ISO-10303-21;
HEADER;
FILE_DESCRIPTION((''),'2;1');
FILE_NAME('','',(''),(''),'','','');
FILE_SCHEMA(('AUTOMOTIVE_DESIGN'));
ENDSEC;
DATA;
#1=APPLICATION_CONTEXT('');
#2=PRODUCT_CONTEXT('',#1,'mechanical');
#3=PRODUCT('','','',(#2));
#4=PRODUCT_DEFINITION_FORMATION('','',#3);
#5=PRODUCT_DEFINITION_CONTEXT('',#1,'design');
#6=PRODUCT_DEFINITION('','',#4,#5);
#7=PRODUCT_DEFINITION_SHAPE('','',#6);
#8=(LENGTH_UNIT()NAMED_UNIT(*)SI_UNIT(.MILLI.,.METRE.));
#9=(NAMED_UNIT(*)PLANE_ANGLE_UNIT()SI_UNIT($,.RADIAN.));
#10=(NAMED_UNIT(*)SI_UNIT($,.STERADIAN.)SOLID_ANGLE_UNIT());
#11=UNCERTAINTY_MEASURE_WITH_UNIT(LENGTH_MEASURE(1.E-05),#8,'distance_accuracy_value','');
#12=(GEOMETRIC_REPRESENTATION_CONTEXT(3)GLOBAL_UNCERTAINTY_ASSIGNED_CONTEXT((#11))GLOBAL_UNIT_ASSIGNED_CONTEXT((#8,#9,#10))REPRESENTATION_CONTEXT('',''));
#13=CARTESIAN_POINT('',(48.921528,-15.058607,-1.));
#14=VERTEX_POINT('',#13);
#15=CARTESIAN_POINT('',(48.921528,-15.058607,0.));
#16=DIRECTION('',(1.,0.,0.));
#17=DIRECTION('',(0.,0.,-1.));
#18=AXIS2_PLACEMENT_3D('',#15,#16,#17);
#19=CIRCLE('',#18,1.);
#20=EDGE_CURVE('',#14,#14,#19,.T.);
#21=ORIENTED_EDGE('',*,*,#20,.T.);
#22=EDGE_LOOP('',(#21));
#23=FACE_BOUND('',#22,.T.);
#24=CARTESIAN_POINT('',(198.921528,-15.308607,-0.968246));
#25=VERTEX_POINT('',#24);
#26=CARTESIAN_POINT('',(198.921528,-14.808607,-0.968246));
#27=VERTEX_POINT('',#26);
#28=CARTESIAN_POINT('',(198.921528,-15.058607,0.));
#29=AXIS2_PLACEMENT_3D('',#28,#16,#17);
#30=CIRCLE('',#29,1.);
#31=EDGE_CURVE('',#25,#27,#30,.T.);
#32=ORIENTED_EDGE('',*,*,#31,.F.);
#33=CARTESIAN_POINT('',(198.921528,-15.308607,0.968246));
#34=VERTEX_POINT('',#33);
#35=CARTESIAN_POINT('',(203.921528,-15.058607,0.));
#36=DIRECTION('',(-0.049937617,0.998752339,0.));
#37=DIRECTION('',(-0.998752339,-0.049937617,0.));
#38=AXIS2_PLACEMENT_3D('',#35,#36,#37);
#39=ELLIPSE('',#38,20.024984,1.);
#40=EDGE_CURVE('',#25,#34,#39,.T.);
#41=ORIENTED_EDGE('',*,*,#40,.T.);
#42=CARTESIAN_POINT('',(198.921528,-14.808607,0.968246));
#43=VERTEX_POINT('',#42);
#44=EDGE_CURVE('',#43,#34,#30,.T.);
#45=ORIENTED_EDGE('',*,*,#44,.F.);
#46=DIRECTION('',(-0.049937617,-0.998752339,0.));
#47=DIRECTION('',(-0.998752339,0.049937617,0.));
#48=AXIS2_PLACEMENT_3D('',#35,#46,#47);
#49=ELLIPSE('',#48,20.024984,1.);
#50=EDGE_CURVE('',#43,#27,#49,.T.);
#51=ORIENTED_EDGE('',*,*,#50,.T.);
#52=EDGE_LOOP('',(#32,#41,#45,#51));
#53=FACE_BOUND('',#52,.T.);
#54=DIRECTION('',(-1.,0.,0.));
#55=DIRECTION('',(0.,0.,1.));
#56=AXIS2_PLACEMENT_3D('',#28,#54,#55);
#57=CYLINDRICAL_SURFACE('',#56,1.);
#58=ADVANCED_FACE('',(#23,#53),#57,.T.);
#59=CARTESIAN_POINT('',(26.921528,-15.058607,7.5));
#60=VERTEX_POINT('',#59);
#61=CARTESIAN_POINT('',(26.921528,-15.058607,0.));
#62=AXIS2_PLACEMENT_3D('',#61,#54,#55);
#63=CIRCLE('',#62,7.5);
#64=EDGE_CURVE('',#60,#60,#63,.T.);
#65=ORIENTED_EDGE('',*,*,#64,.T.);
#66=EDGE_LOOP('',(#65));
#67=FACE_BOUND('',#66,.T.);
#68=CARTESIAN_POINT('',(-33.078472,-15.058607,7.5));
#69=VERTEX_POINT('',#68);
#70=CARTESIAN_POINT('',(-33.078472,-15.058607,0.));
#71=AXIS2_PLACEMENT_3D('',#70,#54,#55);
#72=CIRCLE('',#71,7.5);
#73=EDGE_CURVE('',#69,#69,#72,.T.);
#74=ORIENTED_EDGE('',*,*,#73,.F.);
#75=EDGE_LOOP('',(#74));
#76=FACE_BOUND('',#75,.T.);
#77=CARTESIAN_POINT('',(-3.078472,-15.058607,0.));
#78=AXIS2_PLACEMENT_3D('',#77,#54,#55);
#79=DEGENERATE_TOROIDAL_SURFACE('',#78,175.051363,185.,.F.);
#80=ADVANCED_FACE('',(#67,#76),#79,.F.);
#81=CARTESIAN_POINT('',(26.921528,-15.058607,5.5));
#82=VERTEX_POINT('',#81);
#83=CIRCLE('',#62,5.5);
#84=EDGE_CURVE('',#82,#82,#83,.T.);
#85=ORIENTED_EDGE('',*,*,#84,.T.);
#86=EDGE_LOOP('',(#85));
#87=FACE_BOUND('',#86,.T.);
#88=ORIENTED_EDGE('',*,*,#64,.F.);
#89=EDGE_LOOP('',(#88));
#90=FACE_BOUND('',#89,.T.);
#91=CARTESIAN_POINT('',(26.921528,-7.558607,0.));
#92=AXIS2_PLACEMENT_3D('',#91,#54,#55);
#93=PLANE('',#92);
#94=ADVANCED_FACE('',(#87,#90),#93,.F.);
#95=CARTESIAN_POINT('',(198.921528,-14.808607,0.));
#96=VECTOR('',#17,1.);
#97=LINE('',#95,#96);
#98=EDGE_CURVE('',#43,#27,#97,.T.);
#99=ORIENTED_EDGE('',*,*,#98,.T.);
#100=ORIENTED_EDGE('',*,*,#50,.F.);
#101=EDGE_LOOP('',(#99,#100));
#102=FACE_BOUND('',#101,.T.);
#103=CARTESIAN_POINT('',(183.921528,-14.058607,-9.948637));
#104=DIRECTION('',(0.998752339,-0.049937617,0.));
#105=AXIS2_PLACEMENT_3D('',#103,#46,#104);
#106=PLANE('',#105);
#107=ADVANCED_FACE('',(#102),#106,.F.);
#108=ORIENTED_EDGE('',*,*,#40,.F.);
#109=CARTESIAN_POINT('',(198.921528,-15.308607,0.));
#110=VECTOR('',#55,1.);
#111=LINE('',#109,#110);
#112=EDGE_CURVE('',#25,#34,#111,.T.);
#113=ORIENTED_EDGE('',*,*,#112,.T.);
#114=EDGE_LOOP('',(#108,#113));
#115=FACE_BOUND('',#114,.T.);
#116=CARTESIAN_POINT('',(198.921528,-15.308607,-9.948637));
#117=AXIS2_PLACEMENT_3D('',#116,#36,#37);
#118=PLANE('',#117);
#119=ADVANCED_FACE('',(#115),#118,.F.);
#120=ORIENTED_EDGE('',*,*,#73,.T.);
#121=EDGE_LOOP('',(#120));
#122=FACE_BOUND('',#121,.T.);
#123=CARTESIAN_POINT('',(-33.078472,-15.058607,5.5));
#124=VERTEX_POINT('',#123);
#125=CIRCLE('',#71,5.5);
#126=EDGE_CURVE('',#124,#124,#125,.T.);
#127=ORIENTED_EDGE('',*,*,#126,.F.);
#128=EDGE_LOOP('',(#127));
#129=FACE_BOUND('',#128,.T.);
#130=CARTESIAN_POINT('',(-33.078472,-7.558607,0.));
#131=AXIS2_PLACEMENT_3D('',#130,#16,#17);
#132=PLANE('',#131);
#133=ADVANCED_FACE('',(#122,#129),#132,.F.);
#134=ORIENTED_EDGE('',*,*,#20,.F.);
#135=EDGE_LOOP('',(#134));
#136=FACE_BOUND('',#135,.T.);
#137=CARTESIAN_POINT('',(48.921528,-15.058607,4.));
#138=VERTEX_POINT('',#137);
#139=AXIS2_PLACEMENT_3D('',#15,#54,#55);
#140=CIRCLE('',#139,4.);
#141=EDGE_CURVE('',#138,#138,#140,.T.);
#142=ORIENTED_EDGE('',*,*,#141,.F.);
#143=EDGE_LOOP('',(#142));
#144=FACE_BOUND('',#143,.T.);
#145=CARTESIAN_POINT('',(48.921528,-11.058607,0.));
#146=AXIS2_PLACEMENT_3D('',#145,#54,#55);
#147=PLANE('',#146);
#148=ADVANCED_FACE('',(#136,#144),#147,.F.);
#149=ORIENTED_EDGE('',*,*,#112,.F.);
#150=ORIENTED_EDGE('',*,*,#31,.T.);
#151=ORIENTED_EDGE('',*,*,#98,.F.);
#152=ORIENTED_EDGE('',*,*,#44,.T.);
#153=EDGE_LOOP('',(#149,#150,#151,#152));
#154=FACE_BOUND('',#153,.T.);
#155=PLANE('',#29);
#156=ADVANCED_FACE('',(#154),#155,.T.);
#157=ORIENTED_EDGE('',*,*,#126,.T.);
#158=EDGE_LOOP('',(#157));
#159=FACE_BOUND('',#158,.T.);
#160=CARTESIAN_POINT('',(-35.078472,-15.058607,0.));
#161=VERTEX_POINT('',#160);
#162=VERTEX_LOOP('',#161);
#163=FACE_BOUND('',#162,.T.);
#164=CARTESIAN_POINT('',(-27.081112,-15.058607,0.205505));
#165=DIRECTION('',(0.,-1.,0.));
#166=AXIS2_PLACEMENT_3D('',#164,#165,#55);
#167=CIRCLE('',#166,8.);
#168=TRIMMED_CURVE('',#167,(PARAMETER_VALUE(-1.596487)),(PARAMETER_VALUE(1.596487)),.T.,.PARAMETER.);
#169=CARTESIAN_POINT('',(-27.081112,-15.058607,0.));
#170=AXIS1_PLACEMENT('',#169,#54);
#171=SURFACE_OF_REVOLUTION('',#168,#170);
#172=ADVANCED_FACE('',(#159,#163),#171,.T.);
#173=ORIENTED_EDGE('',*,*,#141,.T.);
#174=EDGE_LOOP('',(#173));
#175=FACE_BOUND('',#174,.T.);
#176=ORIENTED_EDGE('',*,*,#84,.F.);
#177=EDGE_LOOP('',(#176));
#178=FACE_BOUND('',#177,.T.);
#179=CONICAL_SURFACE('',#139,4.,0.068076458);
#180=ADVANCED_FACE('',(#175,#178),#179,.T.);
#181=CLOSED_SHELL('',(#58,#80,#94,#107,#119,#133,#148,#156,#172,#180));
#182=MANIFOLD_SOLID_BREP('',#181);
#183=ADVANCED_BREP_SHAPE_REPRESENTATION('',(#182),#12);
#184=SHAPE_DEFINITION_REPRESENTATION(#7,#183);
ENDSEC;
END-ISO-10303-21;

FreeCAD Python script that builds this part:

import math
import FreeCAD as App
import Part
import Sketcher
from FreeCAD import Vector
Q = App.Units.Quantity

doc = App.newDocument("Part")
body = doc.addObject("PartDesign::Body", "Body")

# Sketch on XY plane
sketch1 = doc.addObject("Sketcher::SketchObject", "Sketch")
body.addObject(sketch1)
sketch1.AttachmentSupport = (doc.XY_Plane, [""])
sketch1.MapMode = "FlatFace"
sketch1.addGeometry(Part.LineSegment(Vector(26.9, -9.6, 0), Vector(26.9, -7.6, 0)), False)
sketch1.addGeometry(Part.ArcOfCircle(Part.Circle(Vector(-3.1, -190.1, 0), Vector(0, 0, 1), 185), math.radians(80.67), math.radians(99.33)), False)
sketch1.addGeometry(Part.LineSegment(Vector(-33.1, -7.6, 0), Vector(-33.1, -9.6, 0)), False)
sketch1.addGeometry(Part.ArcOfCircle(Part.Circle(Vector(-27.1, -14.9, 0), Vector(0, 0, 1), 8), math.radians(139), math.radians(181)), False)
sketch1.addGeometry(Part.LineSegment(Vector(-35.1, -15.1, 0), Vector(48.9, -15.1, 0)), False)
sketch1.addGeometry(Part.LineSegment(Vector(48.9, -15.1, 0), Vector(48.9, -11.1, 0)), False)
sketch1.addGeometry(Part.LineSegment(Vector(48.9, -11.1, 0), Vector(26.9, -9.6, 0)), False)
sketch1.addGeometry(Part.LineSegment(Vector(-35.1, -15.1, 0), Vector(48.9, -15.1, 0)), True)  # axis
sketch1.addConstraint(Sketcher.Constraint("Coincident", 0, 2, 1, 1))
sketch1.addConstraint(Sketcher.Constraint("Coincident", 1, 2, 2, 1))
sketch1.addConstraint(Sketcher.Constraint("Coincident", 2, 2, 3, 1))
sketch1.addConstraint(Sketcher.Constraint("Coincident", 3, 2, 4, 1))
sketch1.addConstraint(Sketcher.Constraint("Coincident", 4, 2, 5, 1))
sketch1.addConstraint(Sketcher.Constraint("Coincident", 5, 2, 6, 1))
sketch1.addConstraint(Sketcher.Constraint("Coincident", 6, 2, 0, 1))
sketch1.addConstraint(Sketcher.Constraint("Vertical", 0))
sketch1.addConstraint(Sketcher.Constraint("Vertical", 2))
sketch1.addConstraint(Sketcher.Constraint("Horizontal", 4))
sketch1.addConstraint(Sketcher.Constraint("Vertical", 5))
sketch1.addConstraint(Sketcher.Constraint("Horizontal", 7))
sketch1.addConstraint(Sketcher.Constraint("Coincident", 7, 1, 3, 2))
sketch1.addConstraint(Sketcher.Constraint("Horizontal", 0, 2, 1, 2))
sketch1.addConstraint(Sketcher.Constraint("Horizontal", 2, 2, 6, 2))
sketch1.addConstraint(Sketcher.Constraint("Vertical", 5, 2, 7, 2))
sketch1.addConstraint(Sketcher.Constraint("Radius", 1, Q("185 mm")))
sketch1.addConstraint(Sketcher.Constraint("Radius", 3, Q("8 mm")))
sketch1.addConstraint(Sketcher.Constraint("DistanceX", 4, 1, 4, 2, Q("84 mm")))
sketch1.addConstraint(Sketcher.Constraint("DistanceY", 0, 1, 0, 2, Q("2 mm")))
sketch1.addConstraint(Sketcher.Constraint("DistanceY", 5, 1, 5, 2, Q("4 mm")))
sketch1.addConstraint(Sketcher.Constraint("DistanceX", 1, 3, 0, 2, Q("30 mm")))
sketch1.addConstraint(Sketcher.Constraint("DistanceX", 3, 2, 2, 2, Q("2 mm")))
sketch1.addConstraint(Sketcher.Constraint("DistanceY", 3, 2, 2, 2, Q("5.5 mm")))
sketch1.addConstraint(Sketcher.Constraint("DistanceY", 3, 3, -1, 1, Q("14.853101 mm")))
sketch1.addConstraint(Sketcher.Constraint("DistanceX", 1, 3, -1, 1, Q("3.078472 mm")))
revolution = doc.addObject("PartDesign::Revolution", "Revolution")
body.addObject(revolution)
revolution.Profile = sketch1
revolution.ReferenceAxis = (sketch1, ["Axis0"])
revolution.Angle = 360

# Sketch on YZ plane
sketch2 = doc.addObject("Sketcher::SketchObject", "Sketch001")
body.addObject(sketch2)
sketch2.AttachmentSupport = (doc.YZ_Plane, [""])
sketch2.MapMode = "FlatFace"
sketch2.AttachmentOffset = App.Placement(Vector(0, 0, 48.921528), App.Rotation())
sketch2.addGeometry(Part.Circle(Vector(-15.1, 0, 0), Vector(0, 0, 1), 1), False)
sketch2.addConstraint(Sketcher.Constraint("PointOnObject", 0, 3, -1))
sketch2.addConstraint(Sketcher.Constraint("Diameter", 0, Q("2 mm")))
sketch2.addConstraint(Sketcher.Constraint("DistanceX", 0, 3, -1, 1, Q("15.058607 mm")))
pad1 = doc.addObject("PartDesign::Pad", "Pad")
body.addObject(pad1)
pad1.Profile = sketch2
pad1.Length = 150

# Sketch on XY plane
sketch3 = doc.addObject("Sketcher::SketchObject", "Sketch002")
body.addObject(sketch3)
sketch3.AttachmentSupport = (doc.XY_Plane, [""])
sketch3.MapMode = "FlatFace"
sketch3.addGeometry(Part.LineSegment(Vector(198.9, -14.1, 0), Vector(183.9, -14.1, 0)), False)
sketch3.addGeometry(Part.LineSegment(Vector(183.9, -14.1, 0), Vector(198.9, -14.8, 0)), False)
sketch3.addGeometry(Part.LineSegment(Vector(198.9, -14.8, 0), Vector(198.9, -14.1, 0)), False)
sketch3.addGeometry(Part.LineSegment(Vector(198.9, -16.1, 0), Vector(198.9, -15.3, 0)), False)
sketch3.addGeometry(Part.LineSegment(Vector(198.9, -15.3, 0), Vector(183.9, -16.1, 0)), False)
sketch3.addGeometry(Part.LineSegment(Vector(183.9, -16.1, 0), Vector(198.9, -16.1, 0)), False)
sketch3.addConstraint(Sketcher.Constraint("Coincident", 0, 2, 1, 1))
sketch3.addConstraint(Sketcher.Constraint("Coincident", 1, 2, 2, 1))
sketch3.addConstraint(Sketcher.Constraint("Coincident", 2, 2, 0, 1))
sketch3.addConstraint(Sketcher.Constraint("Coincident", 3, 2, 4, 1))
sketch3.addConstraint(Sketcher.Constraint("Coincident", 4, 2, 5, 1))
sketch3.addConstraint(Sketcher.Constraint("Coincident", 5, 2, 3, 1))
sketch3.addConstraint(Sketcher.Constraint("Horizontal", 0))
sketch3.addConstraint(Sketcher.Constraint("Vertical", 2))
sketch3.addConstraint(Sketcher.Constraint("Vertical", 3))
sketch3.addConstraint(Sketcher.Constraint("Horizontal", 5))
sketch3.addConstraint(Sketcher.Constraint("Vertical", 2, 2, 3, 2))
sketch3.addConstraint(Sketcher.Constraint("Vertical", 0, 2, 4, 2))
sketch3.addConstraint(Sketcher.Constraint("Equal", 2, 3))
sketch3.addConstraint(Sketcher.Constraint("DistanceX", 0, 2, 0, 1, Q("15 mm")))
sketch3.addConstraint(Sketcher.Constraint("DistanceY", 4, 2, 0, 2, Q("2 mm")))
sketch3.addConstraint(Sketcher.Constraint("DistanceY", 2, 1, 2, 2, Q("0.75 mm")))
sketch3.addConstraint(Sketcher.Constraint("DistanceX", -1, 1, 0, 2, Q("183.921528 mm")))
sketch3.addConstraint(Sketcher.Constraint("DistanceY", 0, 2, -1, 1, Q("14.058607 mm")))
pocket1 = doc.addObject("PartDesign::Pocket", "Pocket")
body.addObject(pocket1)
pocket1.Profile = sketch3
pocket1.Type = "ThroughAll"
pocket1.Midplane = True

doc.recompute()
